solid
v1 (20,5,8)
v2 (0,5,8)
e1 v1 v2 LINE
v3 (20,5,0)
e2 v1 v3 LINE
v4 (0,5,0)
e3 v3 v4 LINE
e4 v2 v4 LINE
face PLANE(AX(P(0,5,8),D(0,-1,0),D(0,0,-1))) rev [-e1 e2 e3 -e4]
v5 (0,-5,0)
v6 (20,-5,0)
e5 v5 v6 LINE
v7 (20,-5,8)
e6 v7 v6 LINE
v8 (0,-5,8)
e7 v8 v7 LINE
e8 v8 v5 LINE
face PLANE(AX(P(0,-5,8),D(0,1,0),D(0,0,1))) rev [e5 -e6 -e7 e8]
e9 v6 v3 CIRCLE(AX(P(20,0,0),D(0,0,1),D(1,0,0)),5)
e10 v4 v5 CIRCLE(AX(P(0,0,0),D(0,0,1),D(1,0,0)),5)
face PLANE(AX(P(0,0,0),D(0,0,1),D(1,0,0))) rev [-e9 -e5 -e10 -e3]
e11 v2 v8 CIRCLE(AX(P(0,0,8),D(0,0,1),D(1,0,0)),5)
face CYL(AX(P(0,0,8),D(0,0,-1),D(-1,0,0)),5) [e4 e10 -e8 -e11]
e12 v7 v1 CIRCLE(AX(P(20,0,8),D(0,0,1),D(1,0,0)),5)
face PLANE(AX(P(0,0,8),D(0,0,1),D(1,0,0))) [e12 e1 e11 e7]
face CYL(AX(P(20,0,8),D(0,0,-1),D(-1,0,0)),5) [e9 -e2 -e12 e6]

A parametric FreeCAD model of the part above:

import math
import FreeCAD as App
import Part
import Sketcher

V = App.Vector

doc = App.newDocument("Part")
body = doc.addObject("PartDesign::Body", "Body")

sketch1 = body.newObject("Sketcher::SketchObject", "Sketch")
sketch1.AttachmentSupport = (doc.getObject("XY_Plane"), [""])
sketch1.MapMode = "FlatFace"
sketch1.addGeometry([
    Part.LineSegment(V(20, 5, 0), V(0, 5, 0)),
    Part.ArcOfCircle(Part.Circle(V(0, 0, 0), V(0, 0, 1), 5), math.radians(90), math.radians(270)),
    Part.LineSegment(V(0, -5, 0), V(20, -5, 0)),
    Part.ArcOfCircle(Part.Circle(V(20, 0, 0), V(0, 0, 1), 5), math.radians(-90), math.radians(90)),
], False)
sketch1.addConstraint([
    Sketcher.Constraint("Tangent", 0, 2, 1, 1),
    Sketcher.Constraint("Tangent", 1, 2, 2, 1),
    Sketcher.Constraint("Tangent", 2, 2, 3, 1),
    Sketcher.Constraint("Tangent", 3, 2, 0, 1),
    Sketcher.Constraint("Horizontal", 0),
    Sketcher.Constraint("Horizontal", 2),
    Sketcher.Constraint("Coincident", 1, 3, -1, 1),
    Sketcher.Constraint("Radius", 1, 5.0),
    Sketcher.Constraint("DistanceX", 0, 2, 0, 1, 20.0),
])
pad1 = body.newObject("PartDesign::Pad", "Pad")
pad1.Profile = sketch1
pad1.Length = 8

doc.recompute()
